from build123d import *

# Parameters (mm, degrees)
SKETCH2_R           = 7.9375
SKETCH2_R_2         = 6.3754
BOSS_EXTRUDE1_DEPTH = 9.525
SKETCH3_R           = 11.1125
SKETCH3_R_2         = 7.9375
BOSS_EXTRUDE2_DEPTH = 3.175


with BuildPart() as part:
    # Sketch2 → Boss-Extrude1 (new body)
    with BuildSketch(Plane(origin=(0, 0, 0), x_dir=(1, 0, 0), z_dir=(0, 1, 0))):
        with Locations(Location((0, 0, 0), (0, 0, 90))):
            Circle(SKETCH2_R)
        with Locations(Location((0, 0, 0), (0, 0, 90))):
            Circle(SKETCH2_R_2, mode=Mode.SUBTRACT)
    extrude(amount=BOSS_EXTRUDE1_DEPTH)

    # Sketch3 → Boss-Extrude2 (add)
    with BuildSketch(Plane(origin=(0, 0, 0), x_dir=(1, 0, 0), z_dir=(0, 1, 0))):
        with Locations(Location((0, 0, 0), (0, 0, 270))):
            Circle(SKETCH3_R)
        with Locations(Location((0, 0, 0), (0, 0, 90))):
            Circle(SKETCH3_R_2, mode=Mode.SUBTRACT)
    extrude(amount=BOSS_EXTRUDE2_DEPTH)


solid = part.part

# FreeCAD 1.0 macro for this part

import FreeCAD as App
import Part
import Sketcher
Q = App.Units.Quantity

doc = App.newDocument("Part")
params = doc.addObject("Spreadsheet::Sheet", "Params")
for row, (alias, value) in enumerate([
    ("sketch1_diameter", "0.625 in"),
    ("sketch1_diameter2", "0.502 in"),
    ("pad1_length", "0.375 in"),
    ("sketch2_diameter", "0.875 in"),
    ("sketch2_diameter2", "0.625 in"),
    ("pad2_length", "0.125 in"),
], start=1):
    params.set(f"A{row}", alias)
    params.set(f"B{row}", "=" + value)
    params.setAlias(f"B{row}", alias)

body = doc.addObject("PartDesign::Body", "Body")

sketch1 = body.newObject("Sketcher::SketchObject", "Sketch")
sketch1.AttachmentSupport = (doc.getObject("XZ_Plane"), [""])
sketch1.MapMode = "FlatFace"
sketch1.addGeometry([
    Part.Circle(App.Vector(0, 0, 0), App.Vector(0, 0, 1), 7.9375),
    Part.Circle(App.Vector(0, 0, 0), App.Vector(0, 0, 1), 6.3754),
], False)
sketch1.addConstraint([
    Sketcher.Constraint("Coincident", 0, 3, -1, 1),
    Sketcher.Constraint("Coincident", 1, 3, -1, 1),
    Sketcher.Constraint("Diameter", 0, Q("0.625 in")),
    Sketcher.Constraint("Diameter", 1, Q("0.502 in")),
])
sketch1.setExpression("Constraints[2]", "Params.sketch1_diameter")
sketch1.setExpression("Constraints[3]", "Params.sketch1_diameter2")
pad1 = body.newObject("PartDesign::Pad", "Pad")
pad1.Profile = sketch1
pad1.setExpression("Length", "Params.pad1_length")
pad1.Reversed = True

sketch2 = body.newObject("Sketcher::SketchObject", "Sketch001")
sketch2.AttachmentSupport = (doc.getObject("XZ_Plane"), [""])
sketch2.MapMode = "FlatFace"
sketch2.addGeometry([
    Part.Circle(App.Vector(0, 0, 0), App.Vector(0, 0, 1), 11.1125),
    Part.Circle(App.Vector(0, 0, 0), App.Vector(0, 0, 1), 7.9375),
], False)
sketch2.addConstraint([
    Sketcher.Constraint("Coincident", 0, 3, -1, 1),
    Sketcher.Constraint("Coincident", 1, 3, -1, 1),
    Sketcher.Constraint("Diameter", 0, Q("0.875 in")),
    Sketcher.Constraint("Diameter", 1, Q("0.625 in")),
])
sketch2.setExpression("Constraints[2]", "Params.sketch2_diameter")
sketch2.setExpression("Constraints[3]", "Params.sketch2_diameter2")
pad2 = body.newObject("PartDesign::Pad", "Pad001")
pad2.Profile = sketch2
pad2.setExpression("Length", "Params.pad2_length")
pad2.Reversed = True

doc.recompute()
